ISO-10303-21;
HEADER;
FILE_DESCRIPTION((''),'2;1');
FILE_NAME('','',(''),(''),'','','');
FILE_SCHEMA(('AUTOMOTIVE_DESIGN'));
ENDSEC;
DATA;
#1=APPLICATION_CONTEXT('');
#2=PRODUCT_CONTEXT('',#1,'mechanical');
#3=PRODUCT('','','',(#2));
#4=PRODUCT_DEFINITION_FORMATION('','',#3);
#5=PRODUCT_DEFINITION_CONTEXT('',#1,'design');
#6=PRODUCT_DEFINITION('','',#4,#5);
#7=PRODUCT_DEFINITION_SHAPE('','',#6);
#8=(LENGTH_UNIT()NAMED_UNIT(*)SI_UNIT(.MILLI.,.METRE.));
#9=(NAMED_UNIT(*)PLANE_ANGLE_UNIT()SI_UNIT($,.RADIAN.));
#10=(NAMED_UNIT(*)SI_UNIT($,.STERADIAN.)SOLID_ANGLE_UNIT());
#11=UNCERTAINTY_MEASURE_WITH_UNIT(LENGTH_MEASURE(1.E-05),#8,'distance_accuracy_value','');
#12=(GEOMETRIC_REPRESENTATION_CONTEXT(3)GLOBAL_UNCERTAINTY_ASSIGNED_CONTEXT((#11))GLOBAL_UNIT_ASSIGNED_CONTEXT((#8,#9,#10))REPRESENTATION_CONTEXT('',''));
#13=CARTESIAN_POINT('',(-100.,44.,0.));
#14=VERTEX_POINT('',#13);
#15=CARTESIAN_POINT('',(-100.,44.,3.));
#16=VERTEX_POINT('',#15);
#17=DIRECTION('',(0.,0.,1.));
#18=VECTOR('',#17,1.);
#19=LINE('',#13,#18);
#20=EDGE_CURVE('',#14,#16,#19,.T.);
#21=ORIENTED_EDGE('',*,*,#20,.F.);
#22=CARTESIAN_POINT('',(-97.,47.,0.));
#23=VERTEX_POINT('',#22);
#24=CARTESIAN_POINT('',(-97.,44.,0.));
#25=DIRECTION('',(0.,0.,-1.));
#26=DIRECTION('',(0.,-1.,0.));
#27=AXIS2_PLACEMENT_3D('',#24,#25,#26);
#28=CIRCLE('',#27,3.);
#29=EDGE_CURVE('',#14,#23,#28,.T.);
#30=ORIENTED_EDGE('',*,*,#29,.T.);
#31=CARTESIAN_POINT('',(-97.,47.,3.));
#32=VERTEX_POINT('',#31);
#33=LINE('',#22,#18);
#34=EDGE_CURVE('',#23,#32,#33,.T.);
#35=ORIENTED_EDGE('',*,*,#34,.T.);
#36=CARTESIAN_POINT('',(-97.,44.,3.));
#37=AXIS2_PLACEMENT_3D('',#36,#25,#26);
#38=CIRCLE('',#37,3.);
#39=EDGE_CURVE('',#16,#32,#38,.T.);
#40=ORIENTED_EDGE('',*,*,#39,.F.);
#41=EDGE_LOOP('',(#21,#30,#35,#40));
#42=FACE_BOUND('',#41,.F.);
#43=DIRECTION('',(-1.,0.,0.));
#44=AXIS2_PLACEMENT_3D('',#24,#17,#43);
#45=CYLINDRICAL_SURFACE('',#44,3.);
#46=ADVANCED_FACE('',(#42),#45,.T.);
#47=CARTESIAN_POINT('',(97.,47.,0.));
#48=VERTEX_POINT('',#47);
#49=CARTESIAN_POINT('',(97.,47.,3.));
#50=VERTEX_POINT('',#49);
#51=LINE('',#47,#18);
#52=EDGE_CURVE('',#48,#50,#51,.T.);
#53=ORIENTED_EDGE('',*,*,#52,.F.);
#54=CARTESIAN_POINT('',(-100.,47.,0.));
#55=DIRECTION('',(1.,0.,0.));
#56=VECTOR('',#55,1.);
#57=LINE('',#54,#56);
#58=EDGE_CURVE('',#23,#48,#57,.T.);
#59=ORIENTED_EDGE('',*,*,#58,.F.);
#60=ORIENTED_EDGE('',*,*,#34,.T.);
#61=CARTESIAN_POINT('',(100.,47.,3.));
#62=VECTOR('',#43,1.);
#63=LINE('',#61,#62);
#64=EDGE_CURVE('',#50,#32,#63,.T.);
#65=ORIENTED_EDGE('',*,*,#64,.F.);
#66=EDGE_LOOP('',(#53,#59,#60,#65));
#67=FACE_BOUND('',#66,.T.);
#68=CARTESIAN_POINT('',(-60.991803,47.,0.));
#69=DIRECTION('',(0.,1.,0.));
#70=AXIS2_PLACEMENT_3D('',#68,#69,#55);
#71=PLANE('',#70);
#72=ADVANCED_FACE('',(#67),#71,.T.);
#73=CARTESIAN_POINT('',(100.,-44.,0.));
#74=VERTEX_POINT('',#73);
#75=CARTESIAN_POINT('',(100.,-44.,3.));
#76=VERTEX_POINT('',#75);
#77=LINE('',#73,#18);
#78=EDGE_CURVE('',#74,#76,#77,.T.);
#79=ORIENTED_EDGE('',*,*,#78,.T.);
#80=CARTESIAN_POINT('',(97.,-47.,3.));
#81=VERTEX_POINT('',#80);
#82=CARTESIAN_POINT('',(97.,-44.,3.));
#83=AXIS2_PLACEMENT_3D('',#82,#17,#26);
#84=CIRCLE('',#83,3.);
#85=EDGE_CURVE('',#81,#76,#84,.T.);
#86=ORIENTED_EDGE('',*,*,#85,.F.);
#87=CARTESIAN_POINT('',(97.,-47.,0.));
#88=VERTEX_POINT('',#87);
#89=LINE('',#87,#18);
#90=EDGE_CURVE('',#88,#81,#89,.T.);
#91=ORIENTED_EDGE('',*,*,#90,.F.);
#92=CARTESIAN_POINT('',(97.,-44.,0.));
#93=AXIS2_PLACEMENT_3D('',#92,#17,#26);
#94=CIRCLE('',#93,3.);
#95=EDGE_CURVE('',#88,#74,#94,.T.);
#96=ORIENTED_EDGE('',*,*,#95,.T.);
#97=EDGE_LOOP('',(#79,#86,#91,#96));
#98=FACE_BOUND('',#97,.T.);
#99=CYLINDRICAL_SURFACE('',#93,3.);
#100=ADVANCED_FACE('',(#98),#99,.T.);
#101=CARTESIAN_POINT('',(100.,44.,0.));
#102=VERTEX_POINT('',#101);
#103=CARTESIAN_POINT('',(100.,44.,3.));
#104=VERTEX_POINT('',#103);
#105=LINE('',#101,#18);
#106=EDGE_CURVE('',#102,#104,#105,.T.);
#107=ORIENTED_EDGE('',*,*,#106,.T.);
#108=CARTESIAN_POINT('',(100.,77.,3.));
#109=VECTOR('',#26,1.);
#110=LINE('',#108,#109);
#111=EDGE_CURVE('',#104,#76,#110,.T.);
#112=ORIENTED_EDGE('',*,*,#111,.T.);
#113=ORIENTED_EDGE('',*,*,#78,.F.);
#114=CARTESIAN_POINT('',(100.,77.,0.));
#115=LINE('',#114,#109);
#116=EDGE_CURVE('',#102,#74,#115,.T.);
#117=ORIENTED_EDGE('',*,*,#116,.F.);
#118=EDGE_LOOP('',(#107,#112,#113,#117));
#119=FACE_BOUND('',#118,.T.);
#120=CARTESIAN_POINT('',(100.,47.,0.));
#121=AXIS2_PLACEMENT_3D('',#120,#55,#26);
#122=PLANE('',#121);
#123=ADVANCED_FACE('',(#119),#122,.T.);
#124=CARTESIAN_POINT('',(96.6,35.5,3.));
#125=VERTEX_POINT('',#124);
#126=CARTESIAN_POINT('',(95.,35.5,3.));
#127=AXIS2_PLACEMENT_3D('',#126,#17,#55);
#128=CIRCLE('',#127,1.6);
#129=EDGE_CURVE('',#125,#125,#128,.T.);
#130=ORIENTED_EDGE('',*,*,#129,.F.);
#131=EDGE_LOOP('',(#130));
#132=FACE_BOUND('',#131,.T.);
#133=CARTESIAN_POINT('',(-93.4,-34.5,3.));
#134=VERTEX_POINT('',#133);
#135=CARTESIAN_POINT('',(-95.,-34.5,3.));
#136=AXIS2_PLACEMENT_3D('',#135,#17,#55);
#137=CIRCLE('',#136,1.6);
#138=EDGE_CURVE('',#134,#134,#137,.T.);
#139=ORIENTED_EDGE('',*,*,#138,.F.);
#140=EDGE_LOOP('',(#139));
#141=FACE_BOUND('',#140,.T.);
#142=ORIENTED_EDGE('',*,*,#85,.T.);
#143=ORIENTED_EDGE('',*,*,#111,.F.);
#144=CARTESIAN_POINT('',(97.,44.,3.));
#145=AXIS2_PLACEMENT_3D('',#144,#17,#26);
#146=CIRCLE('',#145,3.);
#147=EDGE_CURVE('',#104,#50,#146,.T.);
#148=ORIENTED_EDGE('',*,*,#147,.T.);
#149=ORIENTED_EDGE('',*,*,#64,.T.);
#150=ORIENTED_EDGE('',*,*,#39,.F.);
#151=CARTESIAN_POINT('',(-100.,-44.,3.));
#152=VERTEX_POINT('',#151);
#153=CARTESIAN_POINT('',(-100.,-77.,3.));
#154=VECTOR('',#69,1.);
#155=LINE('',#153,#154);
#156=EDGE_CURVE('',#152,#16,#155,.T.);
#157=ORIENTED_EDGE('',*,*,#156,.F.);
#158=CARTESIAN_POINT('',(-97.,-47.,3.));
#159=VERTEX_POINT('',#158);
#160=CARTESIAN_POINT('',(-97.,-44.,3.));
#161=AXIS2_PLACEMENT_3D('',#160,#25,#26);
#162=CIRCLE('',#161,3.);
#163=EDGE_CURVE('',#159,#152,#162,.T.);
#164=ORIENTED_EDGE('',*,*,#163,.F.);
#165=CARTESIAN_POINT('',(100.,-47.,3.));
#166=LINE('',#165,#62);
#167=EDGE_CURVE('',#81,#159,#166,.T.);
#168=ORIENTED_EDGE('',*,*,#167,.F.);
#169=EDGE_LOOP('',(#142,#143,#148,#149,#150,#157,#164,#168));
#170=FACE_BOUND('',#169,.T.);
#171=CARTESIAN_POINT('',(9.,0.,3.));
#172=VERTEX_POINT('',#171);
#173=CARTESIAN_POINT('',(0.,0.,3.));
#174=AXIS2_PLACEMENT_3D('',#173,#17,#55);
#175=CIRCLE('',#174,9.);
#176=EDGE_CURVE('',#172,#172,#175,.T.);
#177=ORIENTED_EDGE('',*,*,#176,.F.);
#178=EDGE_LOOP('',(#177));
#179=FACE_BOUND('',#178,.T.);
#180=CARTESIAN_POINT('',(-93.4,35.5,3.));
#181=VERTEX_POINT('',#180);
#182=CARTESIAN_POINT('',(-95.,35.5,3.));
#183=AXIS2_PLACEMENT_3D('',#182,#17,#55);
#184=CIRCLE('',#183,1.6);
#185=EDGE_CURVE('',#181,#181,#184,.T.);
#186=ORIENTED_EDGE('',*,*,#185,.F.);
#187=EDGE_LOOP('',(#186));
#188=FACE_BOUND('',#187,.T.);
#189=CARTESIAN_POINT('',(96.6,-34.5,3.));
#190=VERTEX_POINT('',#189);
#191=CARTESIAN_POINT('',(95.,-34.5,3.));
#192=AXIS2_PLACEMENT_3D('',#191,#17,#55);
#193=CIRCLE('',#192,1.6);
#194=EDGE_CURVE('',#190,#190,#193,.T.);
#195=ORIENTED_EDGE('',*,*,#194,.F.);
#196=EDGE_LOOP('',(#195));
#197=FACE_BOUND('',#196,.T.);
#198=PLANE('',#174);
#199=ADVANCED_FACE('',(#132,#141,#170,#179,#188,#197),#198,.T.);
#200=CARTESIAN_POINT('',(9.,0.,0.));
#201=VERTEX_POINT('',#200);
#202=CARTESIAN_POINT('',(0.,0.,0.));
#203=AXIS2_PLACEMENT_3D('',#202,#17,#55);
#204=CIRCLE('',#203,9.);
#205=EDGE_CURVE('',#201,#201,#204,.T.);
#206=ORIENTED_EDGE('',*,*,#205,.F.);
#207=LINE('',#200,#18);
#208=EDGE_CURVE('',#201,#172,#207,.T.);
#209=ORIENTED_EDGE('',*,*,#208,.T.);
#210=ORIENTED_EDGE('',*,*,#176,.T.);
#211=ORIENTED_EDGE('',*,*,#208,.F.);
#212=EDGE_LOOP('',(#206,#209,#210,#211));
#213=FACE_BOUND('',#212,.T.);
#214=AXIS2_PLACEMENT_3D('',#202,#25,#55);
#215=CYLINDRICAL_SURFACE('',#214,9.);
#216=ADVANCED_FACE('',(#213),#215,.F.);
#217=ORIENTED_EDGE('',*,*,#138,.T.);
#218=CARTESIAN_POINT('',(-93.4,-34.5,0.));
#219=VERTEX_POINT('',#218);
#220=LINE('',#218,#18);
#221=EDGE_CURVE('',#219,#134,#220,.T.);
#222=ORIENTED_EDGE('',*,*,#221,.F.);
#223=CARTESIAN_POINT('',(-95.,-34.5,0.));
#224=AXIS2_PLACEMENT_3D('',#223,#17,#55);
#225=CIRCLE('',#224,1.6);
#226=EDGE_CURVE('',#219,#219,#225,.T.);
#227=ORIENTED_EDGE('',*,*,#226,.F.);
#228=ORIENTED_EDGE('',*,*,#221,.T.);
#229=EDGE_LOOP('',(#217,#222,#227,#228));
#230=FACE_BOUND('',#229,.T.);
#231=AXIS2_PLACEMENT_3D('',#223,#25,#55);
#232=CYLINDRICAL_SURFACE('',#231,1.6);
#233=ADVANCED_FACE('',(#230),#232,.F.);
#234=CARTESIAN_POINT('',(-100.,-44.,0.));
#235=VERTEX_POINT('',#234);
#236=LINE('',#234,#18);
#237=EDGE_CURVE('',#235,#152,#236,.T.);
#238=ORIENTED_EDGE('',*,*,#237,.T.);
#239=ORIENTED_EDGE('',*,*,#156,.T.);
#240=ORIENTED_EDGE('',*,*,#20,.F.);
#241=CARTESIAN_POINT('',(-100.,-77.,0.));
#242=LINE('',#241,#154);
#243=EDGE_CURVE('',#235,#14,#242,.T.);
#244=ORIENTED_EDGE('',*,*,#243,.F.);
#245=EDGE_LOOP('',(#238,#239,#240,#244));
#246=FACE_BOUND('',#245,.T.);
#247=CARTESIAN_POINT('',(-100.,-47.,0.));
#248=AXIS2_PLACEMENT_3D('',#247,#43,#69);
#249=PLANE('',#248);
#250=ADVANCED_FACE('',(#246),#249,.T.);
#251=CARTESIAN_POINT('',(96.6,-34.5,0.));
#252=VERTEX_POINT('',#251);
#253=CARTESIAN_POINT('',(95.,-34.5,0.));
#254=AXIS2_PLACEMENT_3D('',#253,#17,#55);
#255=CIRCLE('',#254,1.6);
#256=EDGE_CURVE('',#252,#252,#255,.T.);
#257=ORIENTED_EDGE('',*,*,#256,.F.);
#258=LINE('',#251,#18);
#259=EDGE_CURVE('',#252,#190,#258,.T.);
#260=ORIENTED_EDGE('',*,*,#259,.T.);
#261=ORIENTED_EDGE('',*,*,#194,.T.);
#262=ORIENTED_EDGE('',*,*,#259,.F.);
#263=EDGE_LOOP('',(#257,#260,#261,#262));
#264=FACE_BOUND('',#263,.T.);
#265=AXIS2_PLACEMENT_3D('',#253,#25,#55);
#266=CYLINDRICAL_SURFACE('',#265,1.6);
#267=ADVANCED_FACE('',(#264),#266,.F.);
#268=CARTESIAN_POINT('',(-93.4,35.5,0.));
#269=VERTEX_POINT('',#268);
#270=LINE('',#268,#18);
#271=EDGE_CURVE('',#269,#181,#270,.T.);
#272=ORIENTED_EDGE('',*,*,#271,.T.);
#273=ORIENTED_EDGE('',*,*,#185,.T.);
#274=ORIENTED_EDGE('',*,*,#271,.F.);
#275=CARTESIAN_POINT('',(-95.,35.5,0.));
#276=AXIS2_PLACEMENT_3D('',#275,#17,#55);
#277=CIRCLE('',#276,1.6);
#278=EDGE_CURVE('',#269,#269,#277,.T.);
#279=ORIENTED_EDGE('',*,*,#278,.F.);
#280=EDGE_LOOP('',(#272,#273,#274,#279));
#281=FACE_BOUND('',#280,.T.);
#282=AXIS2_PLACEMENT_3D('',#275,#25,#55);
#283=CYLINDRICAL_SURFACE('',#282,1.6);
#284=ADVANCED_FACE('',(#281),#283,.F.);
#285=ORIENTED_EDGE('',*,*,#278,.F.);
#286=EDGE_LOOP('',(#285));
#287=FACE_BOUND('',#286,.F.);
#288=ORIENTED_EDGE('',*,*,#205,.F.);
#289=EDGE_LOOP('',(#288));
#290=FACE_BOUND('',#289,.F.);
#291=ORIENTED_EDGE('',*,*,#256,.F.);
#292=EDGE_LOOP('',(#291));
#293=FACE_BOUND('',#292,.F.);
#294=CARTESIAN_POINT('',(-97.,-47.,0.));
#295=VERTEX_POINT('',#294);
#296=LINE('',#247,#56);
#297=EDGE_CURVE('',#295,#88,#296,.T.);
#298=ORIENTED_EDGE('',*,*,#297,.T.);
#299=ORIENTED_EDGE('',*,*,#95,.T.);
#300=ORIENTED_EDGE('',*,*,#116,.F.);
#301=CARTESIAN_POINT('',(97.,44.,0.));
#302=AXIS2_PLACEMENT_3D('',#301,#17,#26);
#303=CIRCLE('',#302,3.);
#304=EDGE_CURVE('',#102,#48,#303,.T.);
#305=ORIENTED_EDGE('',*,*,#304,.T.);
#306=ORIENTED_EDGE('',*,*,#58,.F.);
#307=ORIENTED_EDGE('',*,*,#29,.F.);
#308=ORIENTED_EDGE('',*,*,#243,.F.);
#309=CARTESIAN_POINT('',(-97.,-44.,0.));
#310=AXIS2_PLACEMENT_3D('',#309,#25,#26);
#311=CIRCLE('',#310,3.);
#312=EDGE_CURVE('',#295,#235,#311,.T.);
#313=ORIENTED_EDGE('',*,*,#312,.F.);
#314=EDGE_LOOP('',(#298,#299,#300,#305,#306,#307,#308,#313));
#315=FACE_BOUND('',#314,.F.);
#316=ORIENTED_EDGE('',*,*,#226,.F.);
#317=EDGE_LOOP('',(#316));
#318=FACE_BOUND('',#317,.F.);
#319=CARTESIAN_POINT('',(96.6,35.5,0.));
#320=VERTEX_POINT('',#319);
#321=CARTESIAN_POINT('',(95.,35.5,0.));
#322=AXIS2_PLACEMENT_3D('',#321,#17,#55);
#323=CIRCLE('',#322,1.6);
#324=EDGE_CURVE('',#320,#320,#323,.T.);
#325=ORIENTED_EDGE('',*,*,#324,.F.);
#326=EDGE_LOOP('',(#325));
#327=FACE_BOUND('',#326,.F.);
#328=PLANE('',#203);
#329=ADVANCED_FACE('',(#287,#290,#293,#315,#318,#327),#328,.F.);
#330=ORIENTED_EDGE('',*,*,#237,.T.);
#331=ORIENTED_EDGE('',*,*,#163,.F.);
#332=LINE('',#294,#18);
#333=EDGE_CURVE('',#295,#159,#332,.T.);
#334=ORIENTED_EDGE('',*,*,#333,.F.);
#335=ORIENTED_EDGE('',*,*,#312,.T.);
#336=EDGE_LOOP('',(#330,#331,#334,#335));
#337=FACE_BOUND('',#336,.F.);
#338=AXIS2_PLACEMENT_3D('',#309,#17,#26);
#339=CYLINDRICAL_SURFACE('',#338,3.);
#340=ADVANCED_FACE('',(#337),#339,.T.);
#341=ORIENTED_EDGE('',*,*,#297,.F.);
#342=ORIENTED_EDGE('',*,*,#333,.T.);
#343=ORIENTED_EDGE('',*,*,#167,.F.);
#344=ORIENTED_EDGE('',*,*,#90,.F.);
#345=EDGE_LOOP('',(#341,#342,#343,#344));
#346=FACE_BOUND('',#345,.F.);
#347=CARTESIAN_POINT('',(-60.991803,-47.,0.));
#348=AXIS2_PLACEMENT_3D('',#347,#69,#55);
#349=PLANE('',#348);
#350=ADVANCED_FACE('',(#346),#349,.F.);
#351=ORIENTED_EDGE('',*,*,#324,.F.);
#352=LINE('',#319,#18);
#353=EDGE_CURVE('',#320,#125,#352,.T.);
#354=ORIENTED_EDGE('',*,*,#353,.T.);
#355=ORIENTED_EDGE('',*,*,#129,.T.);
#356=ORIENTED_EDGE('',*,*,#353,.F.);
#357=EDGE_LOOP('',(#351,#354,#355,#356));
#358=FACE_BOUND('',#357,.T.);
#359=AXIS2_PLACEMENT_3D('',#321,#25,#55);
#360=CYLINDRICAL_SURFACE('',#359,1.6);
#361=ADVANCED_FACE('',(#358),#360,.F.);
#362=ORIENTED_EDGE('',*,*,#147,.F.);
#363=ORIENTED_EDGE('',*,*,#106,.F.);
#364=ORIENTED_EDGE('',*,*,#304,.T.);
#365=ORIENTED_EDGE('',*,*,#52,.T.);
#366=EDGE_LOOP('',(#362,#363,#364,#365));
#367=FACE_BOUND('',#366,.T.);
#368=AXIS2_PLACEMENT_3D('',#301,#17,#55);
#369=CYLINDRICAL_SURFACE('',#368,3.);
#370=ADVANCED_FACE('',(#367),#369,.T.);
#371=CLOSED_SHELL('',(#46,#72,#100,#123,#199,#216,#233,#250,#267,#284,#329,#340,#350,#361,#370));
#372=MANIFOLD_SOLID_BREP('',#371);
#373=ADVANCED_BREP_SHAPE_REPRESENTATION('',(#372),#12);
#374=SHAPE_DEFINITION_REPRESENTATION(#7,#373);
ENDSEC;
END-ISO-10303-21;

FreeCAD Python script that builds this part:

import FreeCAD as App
import Part
import Sketcher
Q = App.Units.Quantity


def edges_at(feature, points):
    """Names of the edges that pass closest to the given points."""
    edges = feature.Shape.Edges
    near = lambda p: min(range(len(edges)), key=lambda i: edges[i].distToShape(Part.Vertex(*p))[0])
    return sorted({f"Edge{near(p) + 1}" for p in points})


def add_polygon(sketch, points):
    """Adds a closed chain of lines whose ends are joined by coincident constraints."""
    first, n = sketch.GeometryCount, len(points)
    for a, b in zip(points, points[1:] + points[:1]):
        sketch.addGeometry(Part.LineSegment(App.Vector(*a, 0), App.Vector(*b, 0)), False)
    for i in range(n):
        sketch.addConstraint(Sketcher.Constraint("Coincident", first + i, 2, first + (i + 1) % n, 1))

doc = App.newDocument("Part")
body = doc.addObject("PartDesign::Body", "Body")

sketch1 = body.newObject("Sketcher::SketchObject", "Sketch")
sketch1.AttachmentSupport = (doc.getObject("XY_Plane"), [""])
sketch1.MapMode = "FlatFace"
add_polygon(sketch1, [(100, -47), (100, 47), (-100, 47), (-100, -47)])
sketch1.addGeometry(Part.Circle(App.Vector(0, 0, 0), App.Vector(0, 0, 1), 9), False)
sketch1.addGeometry(Part.Circle(App.Vector(95, -34.5, 0), App.Vector(0, 0, 1), 1.6), False)
sketch1.addGeometry(Part.Circle(App.Vector(95, 35.5, 0), App.Vector(0, 0, 1), 1.6), False)
sketch1.addGeometry(Part.Circle(App.Vector(-95, 35.5, 0), App.Vector(0, 0, 1), 1.6), False)
sketch1.addGeometry(Part.Circle(App.Vector(-95, -34.5, 0), App.Vector(0, 0, 1), 1.6), False)
sketch1.addConstraint([
    Sketcher.Constraint("Vertical", 0),
    Sketcher.Constraint("Horizontal", 1),
    Sketcher.Constraint("Vertical", 2),
    Sketcher.Constraint("Horizontal", 3),
    Sketcher.Constraint("Coincident", 4, 3, -1, 1),
    Sketcher.Constraint("Equal", 5, 6),
    Sketcher.Constraint("Equal", 6, 7),
    Sketcher.Constraint("Equal", 7, 8),
    Sketcher.Constraint("Symmetric", 0, 2, 2, 2, -1, 1),
    Sketcher.Constraint("Symmetric", 6, 3, 7, 3, -2),
    Sketcher.Constraint("Symmetric", 5, 3, 8, 3, -2),
    Sketcher.Constraint("Vertical", 5, 3, 6, 3),
    Sketcher.Constraint("Diameter", 4, Q("18 mm")),
    Sketcher.Constraint("Diameter", 5, Q("3.2 mm")),
    Sketcher.Constraint("DistanceX", 1, 2, 1, 1, Q("200 mm")),
    Sketcher.Constraint("DistanceY", 5, 3, 6, 3, Q("70 mm")),
    Sketcher.Constraint("DistanceX", 6, 3, 0, 2, Q("5 mm")),
    Sketcher.Constraint("DistanceY", 6, 3, 0, 2, Q("11.5 mm")),
    Sketcher.Constraint("DistanceY", 0, 1, 0, 2, Q("94 mm")),
])
pad1 = body.newObject("PartDesign::Pad", "Pad")
pad1.Profile = sketch1
pad1.Length = 3
doc.recompute()

fillet = body.newObject("PartDesign::Fillet", "Fillet")
fillet.Base = (pad1, edges_at(pad1, [
    (100, 47, 1.5),
    (100, -47, 1.5),
    (-100, -47, 1.5),
    (-100, 47, 1.5),
]))
fillet.Radius = 3

doc.recompute()
